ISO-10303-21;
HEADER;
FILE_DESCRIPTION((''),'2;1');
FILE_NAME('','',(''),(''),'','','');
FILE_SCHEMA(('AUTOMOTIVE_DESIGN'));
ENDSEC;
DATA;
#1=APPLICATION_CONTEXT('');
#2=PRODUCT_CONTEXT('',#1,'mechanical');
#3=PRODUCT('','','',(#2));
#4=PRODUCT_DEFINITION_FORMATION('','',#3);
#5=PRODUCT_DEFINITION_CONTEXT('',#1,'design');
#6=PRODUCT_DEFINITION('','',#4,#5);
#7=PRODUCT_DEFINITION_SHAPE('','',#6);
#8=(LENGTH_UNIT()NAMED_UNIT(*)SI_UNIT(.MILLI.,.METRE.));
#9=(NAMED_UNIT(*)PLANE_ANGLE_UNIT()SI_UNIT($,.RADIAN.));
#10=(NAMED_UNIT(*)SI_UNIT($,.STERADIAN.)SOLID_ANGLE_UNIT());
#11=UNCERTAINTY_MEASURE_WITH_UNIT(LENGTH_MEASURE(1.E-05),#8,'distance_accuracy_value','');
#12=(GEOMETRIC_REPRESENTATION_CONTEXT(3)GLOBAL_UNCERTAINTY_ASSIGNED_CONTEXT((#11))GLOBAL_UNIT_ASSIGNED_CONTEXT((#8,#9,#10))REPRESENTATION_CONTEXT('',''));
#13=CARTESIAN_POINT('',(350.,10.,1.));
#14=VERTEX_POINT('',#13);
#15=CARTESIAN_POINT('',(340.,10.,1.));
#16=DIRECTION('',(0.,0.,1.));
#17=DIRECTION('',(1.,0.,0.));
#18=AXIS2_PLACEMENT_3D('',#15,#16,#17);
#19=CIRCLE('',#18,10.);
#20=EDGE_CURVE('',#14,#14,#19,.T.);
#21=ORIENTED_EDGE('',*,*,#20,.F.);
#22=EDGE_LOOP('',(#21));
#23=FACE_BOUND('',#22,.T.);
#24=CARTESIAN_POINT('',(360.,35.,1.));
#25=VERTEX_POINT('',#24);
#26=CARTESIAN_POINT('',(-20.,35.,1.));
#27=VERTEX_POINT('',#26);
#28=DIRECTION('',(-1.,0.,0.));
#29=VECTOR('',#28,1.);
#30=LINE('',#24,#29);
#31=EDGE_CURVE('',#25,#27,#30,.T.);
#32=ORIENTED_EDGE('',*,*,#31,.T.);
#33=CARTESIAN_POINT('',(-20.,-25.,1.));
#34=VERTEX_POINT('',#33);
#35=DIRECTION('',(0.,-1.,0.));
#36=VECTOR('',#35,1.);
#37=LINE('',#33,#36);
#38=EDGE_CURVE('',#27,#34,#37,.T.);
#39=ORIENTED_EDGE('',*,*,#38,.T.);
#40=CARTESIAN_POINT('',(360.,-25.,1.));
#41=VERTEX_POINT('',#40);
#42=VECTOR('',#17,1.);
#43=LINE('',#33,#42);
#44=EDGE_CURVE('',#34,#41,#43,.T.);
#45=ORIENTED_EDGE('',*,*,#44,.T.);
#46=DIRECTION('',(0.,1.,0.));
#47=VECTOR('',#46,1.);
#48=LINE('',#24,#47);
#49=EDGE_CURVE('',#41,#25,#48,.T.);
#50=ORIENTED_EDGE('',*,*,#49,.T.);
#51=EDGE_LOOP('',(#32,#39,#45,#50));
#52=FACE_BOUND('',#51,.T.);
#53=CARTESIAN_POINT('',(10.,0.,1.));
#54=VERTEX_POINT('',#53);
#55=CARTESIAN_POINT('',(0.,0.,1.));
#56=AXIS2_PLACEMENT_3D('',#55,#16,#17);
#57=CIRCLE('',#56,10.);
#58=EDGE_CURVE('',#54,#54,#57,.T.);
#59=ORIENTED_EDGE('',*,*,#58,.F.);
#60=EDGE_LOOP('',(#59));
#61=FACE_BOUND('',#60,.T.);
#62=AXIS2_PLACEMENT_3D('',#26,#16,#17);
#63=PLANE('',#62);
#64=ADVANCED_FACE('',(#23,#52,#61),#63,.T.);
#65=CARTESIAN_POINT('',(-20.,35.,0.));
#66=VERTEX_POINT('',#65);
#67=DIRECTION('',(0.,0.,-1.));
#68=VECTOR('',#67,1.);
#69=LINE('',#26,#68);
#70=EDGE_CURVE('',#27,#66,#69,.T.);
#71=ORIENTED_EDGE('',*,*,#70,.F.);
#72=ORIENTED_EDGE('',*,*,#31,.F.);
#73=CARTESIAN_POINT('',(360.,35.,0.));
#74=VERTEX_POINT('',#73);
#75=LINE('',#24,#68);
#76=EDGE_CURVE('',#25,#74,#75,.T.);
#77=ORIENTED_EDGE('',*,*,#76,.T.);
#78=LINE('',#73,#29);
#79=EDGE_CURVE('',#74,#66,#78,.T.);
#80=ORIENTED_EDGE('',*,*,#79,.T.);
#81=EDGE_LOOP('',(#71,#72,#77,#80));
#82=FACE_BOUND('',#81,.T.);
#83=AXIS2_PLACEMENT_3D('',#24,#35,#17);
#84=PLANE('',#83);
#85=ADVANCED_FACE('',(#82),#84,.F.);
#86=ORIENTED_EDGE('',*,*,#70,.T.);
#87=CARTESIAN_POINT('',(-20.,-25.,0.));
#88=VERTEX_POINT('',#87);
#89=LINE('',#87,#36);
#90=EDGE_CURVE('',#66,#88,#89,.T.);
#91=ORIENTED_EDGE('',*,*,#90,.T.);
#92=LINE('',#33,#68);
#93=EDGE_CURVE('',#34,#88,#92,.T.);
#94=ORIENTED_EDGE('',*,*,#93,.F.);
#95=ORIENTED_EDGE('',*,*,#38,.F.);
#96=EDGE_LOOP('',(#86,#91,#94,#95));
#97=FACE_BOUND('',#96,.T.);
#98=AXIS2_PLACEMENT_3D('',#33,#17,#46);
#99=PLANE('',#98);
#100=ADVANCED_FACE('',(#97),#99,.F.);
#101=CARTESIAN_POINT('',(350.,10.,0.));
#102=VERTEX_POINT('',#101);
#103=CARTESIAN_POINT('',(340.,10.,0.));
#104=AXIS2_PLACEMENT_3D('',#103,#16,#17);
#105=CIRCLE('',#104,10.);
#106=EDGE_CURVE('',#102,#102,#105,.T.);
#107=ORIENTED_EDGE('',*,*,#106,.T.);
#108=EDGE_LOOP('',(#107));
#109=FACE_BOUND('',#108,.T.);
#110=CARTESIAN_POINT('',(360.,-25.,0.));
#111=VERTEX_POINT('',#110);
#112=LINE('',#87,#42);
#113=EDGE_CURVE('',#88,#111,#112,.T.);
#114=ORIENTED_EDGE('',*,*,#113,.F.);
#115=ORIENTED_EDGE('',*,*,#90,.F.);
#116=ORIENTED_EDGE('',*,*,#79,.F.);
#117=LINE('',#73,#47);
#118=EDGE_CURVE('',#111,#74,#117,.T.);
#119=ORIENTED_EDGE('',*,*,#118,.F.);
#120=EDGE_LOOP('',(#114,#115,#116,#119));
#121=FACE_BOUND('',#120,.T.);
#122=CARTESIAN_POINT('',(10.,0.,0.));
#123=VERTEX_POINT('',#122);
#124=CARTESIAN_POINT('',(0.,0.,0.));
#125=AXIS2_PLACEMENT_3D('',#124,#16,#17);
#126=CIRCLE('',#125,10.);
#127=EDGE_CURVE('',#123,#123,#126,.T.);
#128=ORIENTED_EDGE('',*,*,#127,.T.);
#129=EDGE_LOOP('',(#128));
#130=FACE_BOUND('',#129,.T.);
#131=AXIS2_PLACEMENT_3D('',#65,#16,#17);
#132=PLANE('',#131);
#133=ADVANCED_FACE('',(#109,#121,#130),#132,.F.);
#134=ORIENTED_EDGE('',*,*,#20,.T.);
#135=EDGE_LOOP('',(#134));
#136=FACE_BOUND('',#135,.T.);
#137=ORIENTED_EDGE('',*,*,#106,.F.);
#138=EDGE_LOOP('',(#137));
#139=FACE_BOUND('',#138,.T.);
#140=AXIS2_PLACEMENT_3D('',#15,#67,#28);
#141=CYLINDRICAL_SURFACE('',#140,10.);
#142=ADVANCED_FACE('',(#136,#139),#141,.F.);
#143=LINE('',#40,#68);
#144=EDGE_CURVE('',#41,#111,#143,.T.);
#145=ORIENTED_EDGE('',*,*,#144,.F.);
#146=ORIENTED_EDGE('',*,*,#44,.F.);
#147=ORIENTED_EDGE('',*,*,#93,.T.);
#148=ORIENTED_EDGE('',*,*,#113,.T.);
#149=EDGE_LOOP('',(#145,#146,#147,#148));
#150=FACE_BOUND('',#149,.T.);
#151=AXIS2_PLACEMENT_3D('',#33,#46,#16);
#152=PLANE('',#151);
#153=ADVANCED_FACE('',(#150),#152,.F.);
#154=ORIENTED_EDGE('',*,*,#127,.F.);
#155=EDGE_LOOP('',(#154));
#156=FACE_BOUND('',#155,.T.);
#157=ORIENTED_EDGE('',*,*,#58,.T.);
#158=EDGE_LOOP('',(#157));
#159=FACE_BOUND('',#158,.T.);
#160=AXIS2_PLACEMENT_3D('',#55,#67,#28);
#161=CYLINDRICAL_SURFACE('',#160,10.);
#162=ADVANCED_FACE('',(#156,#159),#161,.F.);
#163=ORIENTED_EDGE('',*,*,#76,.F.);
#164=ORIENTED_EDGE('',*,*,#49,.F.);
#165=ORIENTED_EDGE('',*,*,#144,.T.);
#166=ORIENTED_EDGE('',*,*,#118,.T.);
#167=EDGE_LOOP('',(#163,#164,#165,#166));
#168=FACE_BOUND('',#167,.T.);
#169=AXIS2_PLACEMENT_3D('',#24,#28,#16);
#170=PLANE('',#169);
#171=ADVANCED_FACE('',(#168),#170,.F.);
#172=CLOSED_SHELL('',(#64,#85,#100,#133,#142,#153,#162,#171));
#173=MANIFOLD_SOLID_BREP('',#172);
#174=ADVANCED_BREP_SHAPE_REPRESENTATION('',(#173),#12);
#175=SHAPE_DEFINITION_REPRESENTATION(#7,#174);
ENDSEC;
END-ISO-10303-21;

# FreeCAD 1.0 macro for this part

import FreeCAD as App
import Part
import Sketcher


def add_polygon(sketch, points):
    """Adds a closed chain of lines whose ends are joined by coincident constraints."""
    first, n = sketch.GeometryCount, len(points)
    for a, b in zip(points, points[1:] + points[:1]):
        sketch.addGeometry(Part.LineSegment(App.Vector(*a, 0), App.Vector(*b, 0)), False)
    for i in range(n):
        sketch.addConstraint(Sketcher.Constraint("Coincident", first + i, 2, first + (i + 1) % n, 1))

doc = App.newDocument("Part")
body = doc.addObject("PartDesign::Body", "Body")

sketch1 = doc.addObject("Sketcher::SketchObject", "Sketch")
body.addObject(sketch1)
sketch1.AttachmentSupport = (doc.XY_Plane, [""])
sketch1.MapMode = "FlatFace"
add_polygon(sketch1, [(-20, 35), (-20, -25), (360, -25), (360, 35)])
sketch1.addGeometry(Part.Circle(App.Vector(0, 0, 0), App.Vector(0, 0, 1), 10), False)
sketch1.addGeometry(Part.Circle(App.Vector(340, 10, 0), App.Vector(0, 0, 1), 10), False)
sketch1.addConstraint([
    Sketcher.Constraint("Vertical", 0),
    Sketcher.Constraint("Horizontal", 1),
    Sketcher.Constraint("Vertical", 2),
    Sketcher.Constraint("Horizontal", 3),
    Sketcher.Constraint("Coincident", 4, 3, -1, 1),
    Sketcher.Constraint("Equal", 4, 5),
    Sketcher.Constraint("Diameter", 4, 20.0),
    Sketcher.Constraint("DistanceX", 1, 1, 1, 2, 380.0),
    Sketcher.Constraint("DistanceY", 0, 2, 0, 1, 60.0),
    Sketcher.Constraint("DistanceX", -1, 1, 5, 3, 340.0),
    Sketcher.Constraint("DistanceY", -1, 1, 5, 3, 10.0),
    Sketcher.Constraint("DistanceX", 0, 2, -1, 1, 20.0),
    Sketcher.Constraint("DistanceY", 0, 2, -1, 1, 25.0),
])
pad1 = doc.addObject("PartDesign::Pad", "Pad")
body.addObject(pad1)
pad1.Profile = sketch1
pad1.Length = 1

doc.recompute()
